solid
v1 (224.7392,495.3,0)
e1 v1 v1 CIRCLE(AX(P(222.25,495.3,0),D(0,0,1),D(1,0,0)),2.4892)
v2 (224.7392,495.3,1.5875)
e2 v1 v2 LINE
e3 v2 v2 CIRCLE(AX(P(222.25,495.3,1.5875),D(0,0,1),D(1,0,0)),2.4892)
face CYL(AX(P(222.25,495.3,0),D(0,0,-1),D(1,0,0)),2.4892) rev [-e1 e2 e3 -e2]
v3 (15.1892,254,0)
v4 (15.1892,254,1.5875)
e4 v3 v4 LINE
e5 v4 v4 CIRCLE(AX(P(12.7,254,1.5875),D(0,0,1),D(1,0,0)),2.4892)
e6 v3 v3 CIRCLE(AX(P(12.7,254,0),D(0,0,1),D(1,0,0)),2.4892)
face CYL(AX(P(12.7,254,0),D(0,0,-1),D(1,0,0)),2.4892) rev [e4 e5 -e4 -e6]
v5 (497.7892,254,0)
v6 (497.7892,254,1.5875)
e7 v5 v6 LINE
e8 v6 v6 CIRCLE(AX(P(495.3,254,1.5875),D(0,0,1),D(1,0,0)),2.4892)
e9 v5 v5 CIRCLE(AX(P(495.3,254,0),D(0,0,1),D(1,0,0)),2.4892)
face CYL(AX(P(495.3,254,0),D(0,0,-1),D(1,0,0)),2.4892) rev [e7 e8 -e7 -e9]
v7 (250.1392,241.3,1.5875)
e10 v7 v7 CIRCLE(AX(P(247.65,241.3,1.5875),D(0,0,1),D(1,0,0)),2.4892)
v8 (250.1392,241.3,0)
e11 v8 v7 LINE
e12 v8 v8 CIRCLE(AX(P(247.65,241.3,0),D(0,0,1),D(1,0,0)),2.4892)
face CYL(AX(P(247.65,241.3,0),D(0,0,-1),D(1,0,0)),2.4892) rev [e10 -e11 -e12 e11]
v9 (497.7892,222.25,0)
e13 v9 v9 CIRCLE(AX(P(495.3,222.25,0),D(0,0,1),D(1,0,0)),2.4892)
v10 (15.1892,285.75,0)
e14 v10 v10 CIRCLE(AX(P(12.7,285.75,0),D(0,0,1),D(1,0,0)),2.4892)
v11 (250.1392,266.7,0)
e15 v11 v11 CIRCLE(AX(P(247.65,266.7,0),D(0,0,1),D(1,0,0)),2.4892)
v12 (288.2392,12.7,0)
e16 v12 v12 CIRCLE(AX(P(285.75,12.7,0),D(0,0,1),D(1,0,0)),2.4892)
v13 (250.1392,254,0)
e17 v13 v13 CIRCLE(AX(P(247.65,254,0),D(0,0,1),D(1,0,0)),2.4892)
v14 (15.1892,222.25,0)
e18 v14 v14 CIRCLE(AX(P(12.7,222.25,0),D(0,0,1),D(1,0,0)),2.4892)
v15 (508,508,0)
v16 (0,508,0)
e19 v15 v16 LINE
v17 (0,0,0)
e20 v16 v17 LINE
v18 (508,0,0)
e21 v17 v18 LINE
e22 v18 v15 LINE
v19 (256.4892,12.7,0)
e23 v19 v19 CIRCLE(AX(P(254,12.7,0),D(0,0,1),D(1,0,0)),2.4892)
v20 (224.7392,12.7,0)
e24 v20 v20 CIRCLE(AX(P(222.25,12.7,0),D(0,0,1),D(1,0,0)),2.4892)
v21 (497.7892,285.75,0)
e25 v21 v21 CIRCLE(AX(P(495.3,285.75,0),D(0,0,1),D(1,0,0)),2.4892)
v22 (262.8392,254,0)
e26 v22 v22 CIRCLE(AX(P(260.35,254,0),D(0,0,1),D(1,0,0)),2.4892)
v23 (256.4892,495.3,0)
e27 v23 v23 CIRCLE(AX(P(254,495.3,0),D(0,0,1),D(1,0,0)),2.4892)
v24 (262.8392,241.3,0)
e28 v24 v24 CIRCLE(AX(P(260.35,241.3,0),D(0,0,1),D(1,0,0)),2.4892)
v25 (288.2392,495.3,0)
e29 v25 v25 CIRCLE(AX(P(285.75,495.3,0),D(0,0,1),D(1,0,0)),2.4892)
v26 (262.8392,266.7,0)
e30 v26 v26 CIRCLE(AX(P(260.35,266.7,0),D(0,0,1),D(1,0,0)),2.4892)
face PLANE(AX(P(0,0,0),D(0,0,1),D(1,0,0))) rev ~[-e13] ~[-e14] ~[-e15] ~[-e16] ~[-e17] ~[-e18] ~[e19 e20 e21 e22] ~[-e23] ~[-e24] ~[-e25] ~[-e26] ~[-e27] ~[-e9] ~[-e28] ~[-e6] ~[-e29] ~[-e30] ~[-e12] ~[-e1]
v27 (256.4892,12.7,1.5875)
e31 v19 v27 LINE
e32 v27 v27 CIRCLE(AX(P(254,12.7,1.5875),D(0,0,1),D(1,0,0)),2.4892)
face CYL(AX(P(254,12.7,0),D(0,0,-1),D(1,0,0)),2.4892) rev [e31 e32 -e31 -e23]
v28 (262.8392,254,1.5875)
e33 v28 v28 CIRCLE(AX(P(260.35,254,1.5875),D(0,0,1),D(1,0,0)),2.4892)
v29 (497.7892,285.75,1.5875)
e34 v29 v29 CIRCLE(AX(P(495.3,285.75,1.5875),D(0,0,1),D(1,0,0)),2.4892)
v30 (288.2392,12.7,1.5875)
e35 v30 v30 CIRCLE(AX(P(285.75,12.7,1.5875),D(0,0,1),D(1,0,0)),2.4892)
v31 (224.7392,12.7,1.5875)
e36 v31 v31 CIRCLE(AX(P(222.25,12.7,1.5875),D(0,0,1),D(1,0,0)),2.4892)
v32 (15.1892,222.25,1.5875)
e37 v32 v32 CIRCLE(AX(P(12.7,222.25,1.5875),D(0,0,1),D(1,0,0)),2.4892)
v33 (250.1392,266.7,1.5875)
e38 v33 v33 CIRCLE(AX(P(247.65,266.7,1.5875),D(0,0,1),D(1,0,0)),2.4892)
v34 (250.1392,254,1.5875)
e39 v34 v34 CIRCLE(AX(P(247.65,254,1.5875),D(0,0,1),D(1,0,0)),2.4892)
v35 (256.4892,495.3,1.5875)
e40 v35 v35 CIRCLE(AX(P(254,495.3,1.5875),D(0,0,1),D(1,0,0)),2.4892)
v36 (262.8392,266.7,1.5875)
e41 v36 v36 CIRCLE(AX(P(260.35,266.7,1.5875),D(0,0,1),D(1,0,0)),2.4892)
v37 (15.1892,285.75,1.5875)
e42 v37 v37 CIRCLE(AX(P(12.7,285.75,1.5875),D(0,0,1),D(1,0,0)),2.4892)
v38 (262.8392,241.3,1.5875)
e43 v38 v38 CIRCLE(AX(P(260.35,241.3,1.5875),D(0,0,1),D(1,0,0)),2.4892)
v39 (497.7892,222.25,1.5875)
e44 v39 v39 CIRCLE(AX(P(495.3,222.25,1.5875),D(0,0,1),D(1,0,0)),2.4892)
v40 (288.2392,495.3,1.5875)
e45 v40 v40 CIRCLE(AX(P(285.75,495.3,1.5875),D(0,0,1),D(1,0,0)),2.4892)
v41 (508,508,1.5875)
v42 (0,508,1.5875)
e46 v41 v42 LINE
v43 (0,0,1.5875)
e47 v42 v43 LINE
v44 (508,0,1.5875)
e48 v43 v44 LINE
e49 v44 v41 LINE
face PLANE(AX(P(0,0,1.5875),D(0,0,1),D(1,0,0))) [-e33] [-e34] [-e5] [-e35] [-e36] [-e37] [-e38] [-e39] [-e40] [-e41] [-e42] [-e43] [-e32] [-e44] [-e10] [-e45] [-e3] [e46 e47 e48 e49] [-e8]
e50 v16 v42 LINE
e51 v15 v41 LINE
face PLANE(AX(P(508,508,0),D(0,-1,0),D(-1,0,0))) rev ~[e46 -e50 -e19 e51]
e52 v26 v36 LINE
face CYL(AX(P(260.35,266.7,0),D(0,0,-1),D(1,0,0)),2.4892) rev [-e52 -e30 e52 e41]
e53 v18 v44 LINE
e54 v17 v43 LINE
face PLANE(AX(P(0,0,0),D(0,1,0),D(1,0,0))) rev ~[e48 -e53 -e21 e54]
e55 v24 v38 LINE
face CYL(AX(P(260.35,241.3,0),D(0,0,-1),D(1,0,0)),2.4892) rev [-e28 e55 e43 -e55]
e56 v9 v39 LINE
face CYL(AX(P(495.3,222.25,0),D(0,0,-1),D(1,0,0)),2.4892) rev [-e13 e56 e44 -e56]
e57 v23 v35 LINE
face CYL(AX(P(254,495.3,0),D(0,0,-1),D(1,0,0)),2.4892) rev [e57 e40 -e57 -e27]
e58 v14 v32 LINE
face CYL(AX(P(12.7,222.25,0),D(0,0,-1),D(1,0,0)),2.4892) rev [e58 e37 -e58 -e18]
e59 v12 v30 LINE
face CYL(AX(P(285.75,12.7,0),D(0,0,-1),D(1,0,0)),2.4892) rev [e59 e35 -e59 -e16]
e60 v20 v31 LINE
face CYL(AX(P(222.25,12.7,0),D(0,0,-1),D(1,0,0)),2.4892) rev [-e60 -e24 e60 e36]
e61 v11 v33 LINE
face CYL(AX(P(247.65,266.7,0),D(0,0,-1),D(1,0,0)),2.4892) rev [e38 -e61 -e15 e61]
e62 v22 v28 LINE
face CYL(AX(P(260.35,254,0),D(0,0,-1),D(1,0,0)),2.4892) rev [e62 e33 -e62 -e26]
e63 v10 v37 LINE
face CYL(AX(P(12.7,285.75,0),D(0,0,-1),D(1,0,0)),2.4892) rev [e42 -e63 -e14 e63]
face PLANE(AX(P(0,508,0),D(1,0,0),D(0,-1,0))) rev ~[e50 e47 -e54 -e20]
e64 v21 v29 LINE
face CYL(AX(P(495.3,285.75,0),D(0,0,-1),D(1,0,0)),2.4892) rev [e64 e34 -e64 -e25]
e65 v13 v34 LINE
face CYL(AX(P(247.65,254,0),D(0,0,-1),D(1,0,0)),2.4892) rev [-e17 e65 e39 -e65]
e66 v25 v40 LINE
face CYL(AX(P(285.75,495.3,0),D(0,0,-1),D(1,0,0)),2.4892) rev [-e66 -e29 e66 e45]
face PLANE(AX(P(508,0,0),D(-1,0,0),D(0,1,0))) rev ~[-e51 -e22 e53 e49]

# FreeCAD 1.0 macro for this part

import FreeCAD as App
import Part
import Sketcher
from FreeCAD import Vector
Q = App.Units.Quantity


def add_polygon(sketch, points):
    """Adds a closed chain of lines whose ends are joined by coincident constraints."""
    first, n = sketch.GeometryCount, len(points)
    for a, b in zip(points, points[1:] + points[:1]):
        sketch.addGeometry(Part.LineSegment(App.Vector(*a, 0), App.Vector(*b, 0)), False)
    for i in range(n):
        sketch.addConstraint(Sketcher.Constraint("Coincident", first + i, 2, first + (i + 1) % n, 1))

doc = App.newDocument("Part")
body = doc.addObject("PartDesign::Body", "Body")

# Sketch on XY plane
sketch1 = doc.addObject("Sketcher::SketchObject", "Sketch")
body.addObject(sketch1)
sketch1.AttachmentSupport = (doc.XY_Plane, [""])
sketch1.MapMode = "FlatFace"
add_polygon(sketch1, [(0, 508), (0, 0), (508, 0), (508, 508)])  # lines 0-3
sketch1.addGeometry(Part.Circle(Vector(222.2, 12.7, 0), Vector(0, 0, 1), 2.5), False)  # 4
sketch1.addGeometry(Part.Circle(Vector(12.7, 222.2, 0), Vector(0, 0, 1), 2.5), False)  # 5
sketch1.addGeometry(Part.Circle(Vector(247.7, 241.3, 0), Vector(0, 0, 1), 2.5), False)  # 6
sketch1.addGeometry(Part.Circle(Vector(254, 12.7, 0), Vector(0, 0, 1), 2.5), False)  # 7
sketch1.addGeometry(Part.Circle(Vector(285.8, 12.7, 0), Vector(0, 0, 1), 2.5), False)  # 8
sketch1.addGeometry(Part.Circle(Vector(260.4, 241.3, 0), Vector(0, 0, 1), 2.5), False)  # 9
sketch1.addGeometry(Part.Circle(Vector(495.3, 222.2, 0), Vector(0, 0, 1), 2.5), False)  # 10
sketch1.addGeometry(Part.Circle(Vector(12.7, 254, 0), Vector(0, 0, 1), 2.5), False)  # 11
sketch1.addGeometry(Part.Circle(Vector(12.7, 285.8, 0), Vector(0, 0, 1), 2.5), False)  # 12
sketch1.addGeometry(Part.Circle(Vector(247.7, 254, 0), Vector(0, 0, 1), 2.5), False)  # 13
sketch1.addGeometry(Part.Circle(Vector(247.7, 266.7, 0), Vector(0, 0, 1), 2.5), False)  # 14
sketch1.addGeometry(Part.Circle(Vector(222.2, 495.3, 0), Vector(0, 0, 1), 2.5), False)  # 15
sketch1.addGeometry(Part.Circle(Vector(260.4, 254, 0), Vector(0, 0, 1), 2.5), False)  # 16
sketch1.addGeometry(Part.Circle(Vector(260.4, 266.7, 0), Vector(0, 0, 1), 2.5), False)  # 17
sketch1.addGeometry(Part.Circle(Vector(495.3, 254, 0), Vector(0, 0, 1), 2.5), False)  # 18
sketch1.addGeometry(Part.Circle(Vector(495.3, 285.8, 0), Vector(0, 0, 1), 2.5), False)  # 19
sketch1.addGeometry(Part.Circle(Vector(254, 495.3, 0), Vector(0, 0, 1), 2.5), False)  # 20
sketch1.addGeometry(Part.Circle(Vector(285.8, 495.3, 0), Vector(0, 0, 1), 2.5), False)  # 21
sketch1.addConstraint(Sketcher.Constraint("Vertical", 0))
sketch1.addConstraint(Sketcher.Constraint("Horizontal", 1))
sketch1.addConstraint(Sketcher.Constraint("Vertical", 2))
sketch1.addConstraint(Sketcher.Constraint("Horizontal", 3))
sketch1.addConstraint(Sketcher.Constraint("Coincident", 0, 2, -1, 1))
sketch1.addConstraint(Sketcher.Constraint("Equal", 4, 5))
sketch1.addConstraint(Sketcher.Constraint("Equal", 5, 6))
sketch1.addConstraint(Sketcher.Constraint("Equal", 6, 7))
sketch1.addConstraint(Sketcher.Constraint("Equal", 7, 8))
sketch1.addConstraint(Sketcher.Constraint("Equal", 8, 9))
sketch1.addConstraint(Sketcher.Constraint("Equal", 9, 10))
sketch1.addConstraint(Sketcher.Constraint("Equal", 10, 11))
sketch1.addConstraint(Sketcher.Constraint("Equal", 11, 12))
sketch1.addConstraint(Sketcher.Constraint("Equal", 12, 13))
sketch1.addConstraint(Sketcher.Constraint("Equal", 13, 14))
sketch1.addConstraint(Sketcher.Constraint("Equal", 14, 15))
sketch1.addConstraint(Sketcher.Constraint("Equal", 15, 16))
sketch1.addConstraint(Sketcher.Constraint("Equal", 16, 17))
sketch1.addConstraint(Sketcher.Constraint("Equal", 17, 18))
sketch1.addConstraint(Sketcher.Constraint("Equal", 18, 19))
sketch1.addConstraint(Sketcher.Constraint("Equal", 19, 20))
sketch1.addConstraint(Sketcher.Constraint("Equal", 20, 21))
sketch1.addConstraint(Sketcher.Constraint("Horizontal", 4, 3, 7, 3))
sketch1.addConstraint(Sketcher.Constraint("Horizontal", 7, 3, 8, 3))
sketch1.addConstraint(Sketcher.Constraint("Horizontal", 6, 3, 9, 3))
sketch1.addConstraint(Sketcher.Constraint("Horizontal", 5, 3, 10, 3))
sketch1.addConstraint(Sketcher.Constraint("Horizontal", 11, 3, 13, 3))
sketch1.addConstraint(Sketcher.Constraint("Horizontal", 13, 3, 16, 3))
sketch1.addConstraint(Sketcher.Constraint("Horizontal", 14, 3, 17, 3))
sketch1.addConstraint(Sketcher.Constraint("Horizontal", 16, 3, 18, 3))
sketch1.addConstraint(Sketcher.Constraint("Horizontal", 12, 3, 19, 3))
sketch1.addConstraint(Sketcher.Constraint("Horizontal", 15, 3, 20, 3))
sketch1.addConstraint(Sketcher.Constraint("Horizontal", 20, 3, 21, 3))
sketch1.addConstraint(Sketcher.Constraint("Vertical", 5, 3, 11, 3))
sketch1.addConstraint(Sketcher.Constraint("Vertical", 11, 3, 12, 3))
sketch1.addConstraint(Sketcher.Constraint("Vertical", 6, 3, 13, 3))
sketch1.addConstraint(Sketcher.Constraint("Vertical", 13, 3, 14, 3))
sketch1.addConstraint(Sketcher.Constraint("Vertical", 4, 3, 15, 3))
sketch1.addConstraint(Sketcher.Constraint("Vertical", 9, 3, 16, 3))
sketch1.addConstraint(Sketcher.Constraint("Vertical", 16, 3, 17, 3))
sketch1.addConstraint(Sketcher.Constraint("Vertical", 10, 3, 18, 3))
sketch1.addConstraint(Sketcher.Constraint("Vertical", 18, 3, 19, 3))
sketch1.addConstraint(Sketcher.Constraint("Vertical", 7, 3, 20, 3))
sketch1.addConstraint(Sketcher.Constraint("Vertical", 8, 3, 21, 3))
sketch1.addConstraint(Sketcher.Constraint("Equal", 3, 0))
sketch1.addConstraint(Sketcher.Constraint("DistanceX", 1, 1, 1, 2, Q("20 in")))
sketch1.addConstraint(Sketcher.Constraint("Diameter", 4, Q("0.196 in")))
sketch1.addConstraint(Sketcher.Constraint("DistanceX", 4, 3, 6, 3, Q("1 in")))
sketch1.addConstraint(Sketcher.Constraint("DistanceX", 9, 3, 8, 3, Q("1 in")))
sketch1.addConstraint(Sketcher.Constraint("DistanceY", 6, 3, 14, 3, Q("1 in")))
sketch1.addConstraint(Sketcher.Constraint("DistanceY", -1, 1, 4, 3, Q("0.5 in")))
sketch1.addConstraint(Sketcher.Constraint("DistanceX", -1, 1, 5, 3, Q("0.5 in")))
sketch1.addConstraint(Sketcher.Constraint("DistanceX", 6, 3, 8, 3, Q("1.5 in")))
sketch1.addConstraint(Sketcher.Constraint("DistanceY", 6, 3, 11, 3, Q("0.5 in")))
sketch1.addConstraint(Sketcher.Constraint("DistanceX", 10, 3, 1, 2, Q("0.5 in")))
sketch1.addConstraint(Sketcher.Constraint("DistanceY", 21, 3, 2, 2, Q("0.5 in")))
sketch1.addConstraint(Sketcher.Constraint("DistanceY", 5, 3, 6, 3, Q("0.75 in")))
sketch1.addConstraint(Sketcher.Constraint("DistanceX", 6, 3, 7, 3, Q("0.25 in")))
sketch1.addConstraint(Sketcher.Constraint("DistanceY", 14, 3, 12, 3, Q("0.75 in")))
sketch1.addConstraint(Sketcher.Constraint("DistanceX", -1, 1, 7, 3, Q("10 in")))
sketch1.addConstraint(Sketcher.Constraint("DistanceY", -1, 1, 11, 3, Q("10 in")))
pad1 = doc.addObject("PartDesign::Pad", "Pad")
body.addObject(pad1)
pad1.Profile = sketch1
pad1.Length = Q("0.0625 in")

doc.recompute()
